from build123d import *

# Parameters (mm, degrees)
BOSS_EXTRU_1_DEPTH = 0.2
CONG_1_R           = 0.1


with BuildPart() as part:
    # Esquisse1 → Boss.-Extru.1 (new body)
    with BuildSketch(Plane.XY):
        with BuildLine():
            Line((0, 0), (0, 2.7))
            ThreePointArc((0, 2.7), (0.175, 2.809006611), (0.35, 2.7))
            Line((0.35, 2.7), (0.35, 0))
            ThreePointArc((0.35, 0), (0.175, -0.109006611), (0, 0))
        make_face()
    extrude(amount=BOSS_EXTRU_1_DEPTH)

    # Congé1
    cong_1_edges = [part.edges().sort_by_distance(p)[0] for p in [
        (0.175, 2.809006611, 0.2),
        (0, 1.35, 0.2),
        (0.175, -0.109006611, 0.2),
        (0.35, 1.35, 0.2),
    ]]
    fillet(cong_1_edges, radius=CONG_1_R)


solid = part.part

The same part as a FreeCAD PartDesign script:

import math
import FreeCAD as App
import Part
import Sketcher


def edges_at(feature, points):
    """Names of the edges that pass closest to the given points."""
    edges = feature.Shape.Edges
    near = lambda p: min(range(len(edges)), key=lambda i: edges[i].distToShape(Part.Vertex(*p))[0])
    return sorted({f"Edge{near(p) + 1}" for p in points})

doc = App.newDocument("Part")
body = doc.addObject("PartDesign::Body", "Body")

# Sketch on XY plane
sketch1 = body.newObject("Sketcher::SketchObject", "Sketch")
sketch1.AttachmentSupport = (doc.getObject("XY_Plane"), [""])
sketch1.MapMode = "FlatFace"
sketch1.addGeometry(Part.LineSegment(App.Vector(0, 2.7, 0), App.Vector(0, 0, 0)), False)
sketch1.addGeometry(Part.ArcOfCircle(Part.Circle(App.Vector(0.17, 0.09, 0), App.Vector(0, 0, 1), 0.19), math.radians(-154), math.radians(-26)), False)
sketch1.addGeometry(Part.LineSegment(App.Vector(0.35, 0, 0), App.Vector(0.35, 2.7, 0)), False)
sketch1.addGeometry(Part.ArcOfCircle(Part.Circle(App.Vector(0.17, 2.61, 0), App.Vector(0, 0, 1), 0.19), math.radians(26), math.radians(154)), False)
sketch1.addConstraint(Sketcher.Constraint("Coincident", 0, 2, 1, 1))
sketch1.addConstraint(Sketcher.Constraint("Coincident", 1, 2, 2, 1))
sketch1.addConstraint(Sketcher.Constraint("Coincident", 2, 2, 3, 1))
sketch1.addConstraint(Sketcher.Constraint("Coincident", 3, 2, 0, 1))
sketch1.addConstraint(Sketcher.Constraint("Vertical", 0))
sketch1.addConstraint(Sketcher.Constraint("Vertical", 2))
sketch1.addConstraint(Sketcher.Constraint("Coincident", 0, 2, -1, 1))
sketch1.addConstraint(Sketcher.Constraint("Equal", 1, 3))
sketch1.addConstraint(Sketcher.Constraint("PointOnObject", 1, 2, -1))
sketch1.addConstraint(Sketcher.Constraint("Horizontal", 2, 2, 3, 2))
sketch1.addConstraint(Sketcher.Constraint("DistanceY", 0, 2, 0, 1, 2.7))
sketch1.addConstraint(Sketcher.Constraint("DistanceX", -1, 1, 1, 2, 0.35))
sketch1.addConstraint(Sketcher.Constraint("Radius", 1, 0.194976))
pad1 = body.newObject("PartDesign::Pad", "Pad")
pad1.Profile = sketch1
pad1.Length = 0.2
doc.recompute()

fillet = body.newObject("PartDesign::Fillet", "Fillet")
fillet.Base = (pad1, edges_at(pad1, [
    (0.175, 2.809, 0.2),
    (0, 1.35, 0.2),
    (0.175, -0.109, 0.2),
    (0.35, 1.35, 0.2),
]))
fillet.Radius = 0.1

doc.recompute()
